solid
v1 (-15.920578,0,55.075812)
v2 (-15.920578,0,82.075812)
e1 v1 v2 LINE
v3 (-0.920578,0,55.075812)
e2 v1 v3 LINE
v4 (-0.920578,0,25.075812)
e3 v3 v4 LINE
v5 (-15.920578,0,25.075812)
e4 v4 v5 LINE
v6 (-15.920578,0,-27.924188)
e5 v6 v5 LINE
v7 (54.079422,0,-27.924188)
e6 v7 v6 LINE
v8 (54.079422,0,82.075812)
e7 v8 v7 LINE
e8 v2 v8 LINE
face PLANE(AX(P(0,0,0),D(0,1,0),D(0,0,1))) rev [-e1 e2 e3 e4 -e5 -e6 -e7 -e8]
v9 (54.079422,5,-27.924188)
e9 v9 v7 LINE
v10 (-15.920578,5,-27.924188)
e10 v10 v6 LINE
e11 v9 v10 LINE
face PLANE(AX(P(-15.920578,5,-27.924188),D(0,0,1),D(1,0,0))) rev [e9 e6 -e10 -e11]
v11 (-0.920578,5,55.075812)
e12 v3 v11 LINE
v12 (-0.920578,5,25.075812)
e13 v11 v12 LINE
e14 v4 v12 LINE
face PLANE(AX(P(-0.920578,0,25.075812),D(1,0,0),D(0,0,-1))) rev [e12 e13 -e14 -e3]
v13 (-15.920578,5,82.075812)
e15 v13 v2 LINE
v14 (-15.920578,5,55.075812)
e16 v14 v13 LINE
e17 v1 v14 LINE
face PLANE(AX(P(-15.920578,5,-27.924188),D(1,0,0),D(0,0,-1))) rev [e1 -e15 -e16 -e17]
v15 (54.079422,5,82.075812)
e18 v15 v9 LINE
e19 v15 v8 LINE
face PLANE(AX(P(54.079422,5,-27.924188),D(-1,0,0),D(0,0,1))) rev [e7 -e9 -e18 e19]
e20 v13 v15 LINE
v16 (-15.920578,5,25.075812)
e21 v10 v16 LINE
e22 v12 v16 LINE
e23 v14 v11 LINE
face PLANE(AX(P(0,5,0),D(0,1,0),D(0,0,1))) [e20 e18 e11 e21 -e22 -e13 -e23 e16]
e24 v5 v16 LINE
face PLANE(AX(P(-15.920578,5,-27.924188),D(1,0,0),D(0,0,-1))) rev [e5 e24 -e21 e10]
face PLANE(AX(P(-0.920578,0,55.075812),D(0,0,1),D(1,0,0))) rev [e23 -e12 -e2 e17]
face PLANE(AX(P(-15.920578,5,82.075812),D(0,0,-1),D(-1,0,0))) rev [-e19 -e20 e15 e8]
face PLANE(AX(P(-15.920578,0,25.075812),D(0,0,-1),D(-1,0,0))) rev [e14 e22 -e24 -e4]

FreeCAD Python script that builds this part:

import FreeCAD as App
import Part
import Sketcher
from FreeCAD import Vector
Q = App.Units.Quantity


def add_polygon(sketch, points):
    """Adds a closed chain of lines whose ends are joined by coincident constraints."""
    first, n = sketch.GeometryCount, len(points)
    for a, b in zip(points, points[1:] + points[:1]):
        sketch.addGeometry(Part.LineSegment(App.Vector(*a, 0), App.Vector(*b, 0)), False)
    for i in range(n):
        sketch.addConstraint(Sketcher.Constraint("Coincident", first + i, 2, first + (i + 1) % n, 1))

doc = App.newDocument("Part")
body = doc.addObject("PartDesign::Body", "Body")

# Sketch on XZ plane
sketch1 = body.newObject("Sketcher::SketchObject", "Sketch")
sketch1.AttachmentSupport = (doc.getObject("XZ_Plane"), [""])
sketch1.MapMode = "FlatFace"
add_polygon(sketch1, [(-16, -28), (-16, 82), (54, 82), (54, -28)])  # lines 0-3
sketch1.addConstraint(Sketcher.Constraint("Vertical", 0))
sketch1.addConstraint(Sketcher.Constraint("Horizontal", 1))
sketch1.addConstraint(Sketcher.Constraint("Vertical", 2))
sketch1.addConstraint(Sketcher.Constraint("Horizontal", 3))
sketch1.addConstraint(Sketcher.Constraint("DistanceX", 1, 1, 1, 2, Q("70 mm")))
sketch1.addConstraint(Sketcher.Constraint("DistanceY", 0, 1, 0, 2, Q("110 mm")))
sketch1.addConstraint(Sketcher.Constraint("DistanceX", 0, 2, -1, 1, Q("15.920578 mm")))
sketch1.addConstraint(Sketcher.Constraint("DistanceY", -1, 1, 0, 2, Q("82.075812 mm")))
pad1 = body.newObject("PartDesign::Pad", "Pad")
pad1.Profile = sketch1
pad1.Length = 5
pad1.Reversed = True

# Sketch on XZ plane
sketch2 = body.newObject("Sketcher::SketchObject", "Sketch001")
sketch2.AttachmentSupport = (doc.getObject("XZ_Plane"), [""])
sketch2.MapMode = "FlatFace"
sketch2.AttachmentOffset = App.Placement(Vector(0, 0, -5), App.Rotation())
add_polygon(sketch2, [(-16, 25), (-16, 55), (-1, 55), (-1, 25)])  # lines 0-3
sketch2.addConstraint(Sketcher.Constraint("Vertical", 0))
sketch2.addConstraint(Sketcher.Constraint("Horizontal", 1))
sketch2.addConstraint(Sketcher.Constraint("Vertical", 2))
sketch2.addConstraint(Sketcher.Constraint("Horizontal", 3))
sketch2.addConstraint(Sketcher.Constraint("DistanceX", 1, 1, 1, 2, Q("15 mm")))
sketch2.addConstraint(Sketcher.Constraint("DistanceY", 0, 1, 0, 2, Q("30 mm")))
sketch2.addConstraint(Sketcher.Constraint("DistanceX", 0, 2, -1, 1, Q("15.920578 mm")))
sketch2.addConstraint(Sketcher.Constraint("DistanceY", -1, 1, 0, 2, Q("55.075812 mm")))
pocket1 = body.newObject("PartDesign::Pocket", "Pocket")
pocket1.Profile = sketch2
pocket1.Type = "ThroughAll"
pocket1.Reversed = True

doc.recompute()
